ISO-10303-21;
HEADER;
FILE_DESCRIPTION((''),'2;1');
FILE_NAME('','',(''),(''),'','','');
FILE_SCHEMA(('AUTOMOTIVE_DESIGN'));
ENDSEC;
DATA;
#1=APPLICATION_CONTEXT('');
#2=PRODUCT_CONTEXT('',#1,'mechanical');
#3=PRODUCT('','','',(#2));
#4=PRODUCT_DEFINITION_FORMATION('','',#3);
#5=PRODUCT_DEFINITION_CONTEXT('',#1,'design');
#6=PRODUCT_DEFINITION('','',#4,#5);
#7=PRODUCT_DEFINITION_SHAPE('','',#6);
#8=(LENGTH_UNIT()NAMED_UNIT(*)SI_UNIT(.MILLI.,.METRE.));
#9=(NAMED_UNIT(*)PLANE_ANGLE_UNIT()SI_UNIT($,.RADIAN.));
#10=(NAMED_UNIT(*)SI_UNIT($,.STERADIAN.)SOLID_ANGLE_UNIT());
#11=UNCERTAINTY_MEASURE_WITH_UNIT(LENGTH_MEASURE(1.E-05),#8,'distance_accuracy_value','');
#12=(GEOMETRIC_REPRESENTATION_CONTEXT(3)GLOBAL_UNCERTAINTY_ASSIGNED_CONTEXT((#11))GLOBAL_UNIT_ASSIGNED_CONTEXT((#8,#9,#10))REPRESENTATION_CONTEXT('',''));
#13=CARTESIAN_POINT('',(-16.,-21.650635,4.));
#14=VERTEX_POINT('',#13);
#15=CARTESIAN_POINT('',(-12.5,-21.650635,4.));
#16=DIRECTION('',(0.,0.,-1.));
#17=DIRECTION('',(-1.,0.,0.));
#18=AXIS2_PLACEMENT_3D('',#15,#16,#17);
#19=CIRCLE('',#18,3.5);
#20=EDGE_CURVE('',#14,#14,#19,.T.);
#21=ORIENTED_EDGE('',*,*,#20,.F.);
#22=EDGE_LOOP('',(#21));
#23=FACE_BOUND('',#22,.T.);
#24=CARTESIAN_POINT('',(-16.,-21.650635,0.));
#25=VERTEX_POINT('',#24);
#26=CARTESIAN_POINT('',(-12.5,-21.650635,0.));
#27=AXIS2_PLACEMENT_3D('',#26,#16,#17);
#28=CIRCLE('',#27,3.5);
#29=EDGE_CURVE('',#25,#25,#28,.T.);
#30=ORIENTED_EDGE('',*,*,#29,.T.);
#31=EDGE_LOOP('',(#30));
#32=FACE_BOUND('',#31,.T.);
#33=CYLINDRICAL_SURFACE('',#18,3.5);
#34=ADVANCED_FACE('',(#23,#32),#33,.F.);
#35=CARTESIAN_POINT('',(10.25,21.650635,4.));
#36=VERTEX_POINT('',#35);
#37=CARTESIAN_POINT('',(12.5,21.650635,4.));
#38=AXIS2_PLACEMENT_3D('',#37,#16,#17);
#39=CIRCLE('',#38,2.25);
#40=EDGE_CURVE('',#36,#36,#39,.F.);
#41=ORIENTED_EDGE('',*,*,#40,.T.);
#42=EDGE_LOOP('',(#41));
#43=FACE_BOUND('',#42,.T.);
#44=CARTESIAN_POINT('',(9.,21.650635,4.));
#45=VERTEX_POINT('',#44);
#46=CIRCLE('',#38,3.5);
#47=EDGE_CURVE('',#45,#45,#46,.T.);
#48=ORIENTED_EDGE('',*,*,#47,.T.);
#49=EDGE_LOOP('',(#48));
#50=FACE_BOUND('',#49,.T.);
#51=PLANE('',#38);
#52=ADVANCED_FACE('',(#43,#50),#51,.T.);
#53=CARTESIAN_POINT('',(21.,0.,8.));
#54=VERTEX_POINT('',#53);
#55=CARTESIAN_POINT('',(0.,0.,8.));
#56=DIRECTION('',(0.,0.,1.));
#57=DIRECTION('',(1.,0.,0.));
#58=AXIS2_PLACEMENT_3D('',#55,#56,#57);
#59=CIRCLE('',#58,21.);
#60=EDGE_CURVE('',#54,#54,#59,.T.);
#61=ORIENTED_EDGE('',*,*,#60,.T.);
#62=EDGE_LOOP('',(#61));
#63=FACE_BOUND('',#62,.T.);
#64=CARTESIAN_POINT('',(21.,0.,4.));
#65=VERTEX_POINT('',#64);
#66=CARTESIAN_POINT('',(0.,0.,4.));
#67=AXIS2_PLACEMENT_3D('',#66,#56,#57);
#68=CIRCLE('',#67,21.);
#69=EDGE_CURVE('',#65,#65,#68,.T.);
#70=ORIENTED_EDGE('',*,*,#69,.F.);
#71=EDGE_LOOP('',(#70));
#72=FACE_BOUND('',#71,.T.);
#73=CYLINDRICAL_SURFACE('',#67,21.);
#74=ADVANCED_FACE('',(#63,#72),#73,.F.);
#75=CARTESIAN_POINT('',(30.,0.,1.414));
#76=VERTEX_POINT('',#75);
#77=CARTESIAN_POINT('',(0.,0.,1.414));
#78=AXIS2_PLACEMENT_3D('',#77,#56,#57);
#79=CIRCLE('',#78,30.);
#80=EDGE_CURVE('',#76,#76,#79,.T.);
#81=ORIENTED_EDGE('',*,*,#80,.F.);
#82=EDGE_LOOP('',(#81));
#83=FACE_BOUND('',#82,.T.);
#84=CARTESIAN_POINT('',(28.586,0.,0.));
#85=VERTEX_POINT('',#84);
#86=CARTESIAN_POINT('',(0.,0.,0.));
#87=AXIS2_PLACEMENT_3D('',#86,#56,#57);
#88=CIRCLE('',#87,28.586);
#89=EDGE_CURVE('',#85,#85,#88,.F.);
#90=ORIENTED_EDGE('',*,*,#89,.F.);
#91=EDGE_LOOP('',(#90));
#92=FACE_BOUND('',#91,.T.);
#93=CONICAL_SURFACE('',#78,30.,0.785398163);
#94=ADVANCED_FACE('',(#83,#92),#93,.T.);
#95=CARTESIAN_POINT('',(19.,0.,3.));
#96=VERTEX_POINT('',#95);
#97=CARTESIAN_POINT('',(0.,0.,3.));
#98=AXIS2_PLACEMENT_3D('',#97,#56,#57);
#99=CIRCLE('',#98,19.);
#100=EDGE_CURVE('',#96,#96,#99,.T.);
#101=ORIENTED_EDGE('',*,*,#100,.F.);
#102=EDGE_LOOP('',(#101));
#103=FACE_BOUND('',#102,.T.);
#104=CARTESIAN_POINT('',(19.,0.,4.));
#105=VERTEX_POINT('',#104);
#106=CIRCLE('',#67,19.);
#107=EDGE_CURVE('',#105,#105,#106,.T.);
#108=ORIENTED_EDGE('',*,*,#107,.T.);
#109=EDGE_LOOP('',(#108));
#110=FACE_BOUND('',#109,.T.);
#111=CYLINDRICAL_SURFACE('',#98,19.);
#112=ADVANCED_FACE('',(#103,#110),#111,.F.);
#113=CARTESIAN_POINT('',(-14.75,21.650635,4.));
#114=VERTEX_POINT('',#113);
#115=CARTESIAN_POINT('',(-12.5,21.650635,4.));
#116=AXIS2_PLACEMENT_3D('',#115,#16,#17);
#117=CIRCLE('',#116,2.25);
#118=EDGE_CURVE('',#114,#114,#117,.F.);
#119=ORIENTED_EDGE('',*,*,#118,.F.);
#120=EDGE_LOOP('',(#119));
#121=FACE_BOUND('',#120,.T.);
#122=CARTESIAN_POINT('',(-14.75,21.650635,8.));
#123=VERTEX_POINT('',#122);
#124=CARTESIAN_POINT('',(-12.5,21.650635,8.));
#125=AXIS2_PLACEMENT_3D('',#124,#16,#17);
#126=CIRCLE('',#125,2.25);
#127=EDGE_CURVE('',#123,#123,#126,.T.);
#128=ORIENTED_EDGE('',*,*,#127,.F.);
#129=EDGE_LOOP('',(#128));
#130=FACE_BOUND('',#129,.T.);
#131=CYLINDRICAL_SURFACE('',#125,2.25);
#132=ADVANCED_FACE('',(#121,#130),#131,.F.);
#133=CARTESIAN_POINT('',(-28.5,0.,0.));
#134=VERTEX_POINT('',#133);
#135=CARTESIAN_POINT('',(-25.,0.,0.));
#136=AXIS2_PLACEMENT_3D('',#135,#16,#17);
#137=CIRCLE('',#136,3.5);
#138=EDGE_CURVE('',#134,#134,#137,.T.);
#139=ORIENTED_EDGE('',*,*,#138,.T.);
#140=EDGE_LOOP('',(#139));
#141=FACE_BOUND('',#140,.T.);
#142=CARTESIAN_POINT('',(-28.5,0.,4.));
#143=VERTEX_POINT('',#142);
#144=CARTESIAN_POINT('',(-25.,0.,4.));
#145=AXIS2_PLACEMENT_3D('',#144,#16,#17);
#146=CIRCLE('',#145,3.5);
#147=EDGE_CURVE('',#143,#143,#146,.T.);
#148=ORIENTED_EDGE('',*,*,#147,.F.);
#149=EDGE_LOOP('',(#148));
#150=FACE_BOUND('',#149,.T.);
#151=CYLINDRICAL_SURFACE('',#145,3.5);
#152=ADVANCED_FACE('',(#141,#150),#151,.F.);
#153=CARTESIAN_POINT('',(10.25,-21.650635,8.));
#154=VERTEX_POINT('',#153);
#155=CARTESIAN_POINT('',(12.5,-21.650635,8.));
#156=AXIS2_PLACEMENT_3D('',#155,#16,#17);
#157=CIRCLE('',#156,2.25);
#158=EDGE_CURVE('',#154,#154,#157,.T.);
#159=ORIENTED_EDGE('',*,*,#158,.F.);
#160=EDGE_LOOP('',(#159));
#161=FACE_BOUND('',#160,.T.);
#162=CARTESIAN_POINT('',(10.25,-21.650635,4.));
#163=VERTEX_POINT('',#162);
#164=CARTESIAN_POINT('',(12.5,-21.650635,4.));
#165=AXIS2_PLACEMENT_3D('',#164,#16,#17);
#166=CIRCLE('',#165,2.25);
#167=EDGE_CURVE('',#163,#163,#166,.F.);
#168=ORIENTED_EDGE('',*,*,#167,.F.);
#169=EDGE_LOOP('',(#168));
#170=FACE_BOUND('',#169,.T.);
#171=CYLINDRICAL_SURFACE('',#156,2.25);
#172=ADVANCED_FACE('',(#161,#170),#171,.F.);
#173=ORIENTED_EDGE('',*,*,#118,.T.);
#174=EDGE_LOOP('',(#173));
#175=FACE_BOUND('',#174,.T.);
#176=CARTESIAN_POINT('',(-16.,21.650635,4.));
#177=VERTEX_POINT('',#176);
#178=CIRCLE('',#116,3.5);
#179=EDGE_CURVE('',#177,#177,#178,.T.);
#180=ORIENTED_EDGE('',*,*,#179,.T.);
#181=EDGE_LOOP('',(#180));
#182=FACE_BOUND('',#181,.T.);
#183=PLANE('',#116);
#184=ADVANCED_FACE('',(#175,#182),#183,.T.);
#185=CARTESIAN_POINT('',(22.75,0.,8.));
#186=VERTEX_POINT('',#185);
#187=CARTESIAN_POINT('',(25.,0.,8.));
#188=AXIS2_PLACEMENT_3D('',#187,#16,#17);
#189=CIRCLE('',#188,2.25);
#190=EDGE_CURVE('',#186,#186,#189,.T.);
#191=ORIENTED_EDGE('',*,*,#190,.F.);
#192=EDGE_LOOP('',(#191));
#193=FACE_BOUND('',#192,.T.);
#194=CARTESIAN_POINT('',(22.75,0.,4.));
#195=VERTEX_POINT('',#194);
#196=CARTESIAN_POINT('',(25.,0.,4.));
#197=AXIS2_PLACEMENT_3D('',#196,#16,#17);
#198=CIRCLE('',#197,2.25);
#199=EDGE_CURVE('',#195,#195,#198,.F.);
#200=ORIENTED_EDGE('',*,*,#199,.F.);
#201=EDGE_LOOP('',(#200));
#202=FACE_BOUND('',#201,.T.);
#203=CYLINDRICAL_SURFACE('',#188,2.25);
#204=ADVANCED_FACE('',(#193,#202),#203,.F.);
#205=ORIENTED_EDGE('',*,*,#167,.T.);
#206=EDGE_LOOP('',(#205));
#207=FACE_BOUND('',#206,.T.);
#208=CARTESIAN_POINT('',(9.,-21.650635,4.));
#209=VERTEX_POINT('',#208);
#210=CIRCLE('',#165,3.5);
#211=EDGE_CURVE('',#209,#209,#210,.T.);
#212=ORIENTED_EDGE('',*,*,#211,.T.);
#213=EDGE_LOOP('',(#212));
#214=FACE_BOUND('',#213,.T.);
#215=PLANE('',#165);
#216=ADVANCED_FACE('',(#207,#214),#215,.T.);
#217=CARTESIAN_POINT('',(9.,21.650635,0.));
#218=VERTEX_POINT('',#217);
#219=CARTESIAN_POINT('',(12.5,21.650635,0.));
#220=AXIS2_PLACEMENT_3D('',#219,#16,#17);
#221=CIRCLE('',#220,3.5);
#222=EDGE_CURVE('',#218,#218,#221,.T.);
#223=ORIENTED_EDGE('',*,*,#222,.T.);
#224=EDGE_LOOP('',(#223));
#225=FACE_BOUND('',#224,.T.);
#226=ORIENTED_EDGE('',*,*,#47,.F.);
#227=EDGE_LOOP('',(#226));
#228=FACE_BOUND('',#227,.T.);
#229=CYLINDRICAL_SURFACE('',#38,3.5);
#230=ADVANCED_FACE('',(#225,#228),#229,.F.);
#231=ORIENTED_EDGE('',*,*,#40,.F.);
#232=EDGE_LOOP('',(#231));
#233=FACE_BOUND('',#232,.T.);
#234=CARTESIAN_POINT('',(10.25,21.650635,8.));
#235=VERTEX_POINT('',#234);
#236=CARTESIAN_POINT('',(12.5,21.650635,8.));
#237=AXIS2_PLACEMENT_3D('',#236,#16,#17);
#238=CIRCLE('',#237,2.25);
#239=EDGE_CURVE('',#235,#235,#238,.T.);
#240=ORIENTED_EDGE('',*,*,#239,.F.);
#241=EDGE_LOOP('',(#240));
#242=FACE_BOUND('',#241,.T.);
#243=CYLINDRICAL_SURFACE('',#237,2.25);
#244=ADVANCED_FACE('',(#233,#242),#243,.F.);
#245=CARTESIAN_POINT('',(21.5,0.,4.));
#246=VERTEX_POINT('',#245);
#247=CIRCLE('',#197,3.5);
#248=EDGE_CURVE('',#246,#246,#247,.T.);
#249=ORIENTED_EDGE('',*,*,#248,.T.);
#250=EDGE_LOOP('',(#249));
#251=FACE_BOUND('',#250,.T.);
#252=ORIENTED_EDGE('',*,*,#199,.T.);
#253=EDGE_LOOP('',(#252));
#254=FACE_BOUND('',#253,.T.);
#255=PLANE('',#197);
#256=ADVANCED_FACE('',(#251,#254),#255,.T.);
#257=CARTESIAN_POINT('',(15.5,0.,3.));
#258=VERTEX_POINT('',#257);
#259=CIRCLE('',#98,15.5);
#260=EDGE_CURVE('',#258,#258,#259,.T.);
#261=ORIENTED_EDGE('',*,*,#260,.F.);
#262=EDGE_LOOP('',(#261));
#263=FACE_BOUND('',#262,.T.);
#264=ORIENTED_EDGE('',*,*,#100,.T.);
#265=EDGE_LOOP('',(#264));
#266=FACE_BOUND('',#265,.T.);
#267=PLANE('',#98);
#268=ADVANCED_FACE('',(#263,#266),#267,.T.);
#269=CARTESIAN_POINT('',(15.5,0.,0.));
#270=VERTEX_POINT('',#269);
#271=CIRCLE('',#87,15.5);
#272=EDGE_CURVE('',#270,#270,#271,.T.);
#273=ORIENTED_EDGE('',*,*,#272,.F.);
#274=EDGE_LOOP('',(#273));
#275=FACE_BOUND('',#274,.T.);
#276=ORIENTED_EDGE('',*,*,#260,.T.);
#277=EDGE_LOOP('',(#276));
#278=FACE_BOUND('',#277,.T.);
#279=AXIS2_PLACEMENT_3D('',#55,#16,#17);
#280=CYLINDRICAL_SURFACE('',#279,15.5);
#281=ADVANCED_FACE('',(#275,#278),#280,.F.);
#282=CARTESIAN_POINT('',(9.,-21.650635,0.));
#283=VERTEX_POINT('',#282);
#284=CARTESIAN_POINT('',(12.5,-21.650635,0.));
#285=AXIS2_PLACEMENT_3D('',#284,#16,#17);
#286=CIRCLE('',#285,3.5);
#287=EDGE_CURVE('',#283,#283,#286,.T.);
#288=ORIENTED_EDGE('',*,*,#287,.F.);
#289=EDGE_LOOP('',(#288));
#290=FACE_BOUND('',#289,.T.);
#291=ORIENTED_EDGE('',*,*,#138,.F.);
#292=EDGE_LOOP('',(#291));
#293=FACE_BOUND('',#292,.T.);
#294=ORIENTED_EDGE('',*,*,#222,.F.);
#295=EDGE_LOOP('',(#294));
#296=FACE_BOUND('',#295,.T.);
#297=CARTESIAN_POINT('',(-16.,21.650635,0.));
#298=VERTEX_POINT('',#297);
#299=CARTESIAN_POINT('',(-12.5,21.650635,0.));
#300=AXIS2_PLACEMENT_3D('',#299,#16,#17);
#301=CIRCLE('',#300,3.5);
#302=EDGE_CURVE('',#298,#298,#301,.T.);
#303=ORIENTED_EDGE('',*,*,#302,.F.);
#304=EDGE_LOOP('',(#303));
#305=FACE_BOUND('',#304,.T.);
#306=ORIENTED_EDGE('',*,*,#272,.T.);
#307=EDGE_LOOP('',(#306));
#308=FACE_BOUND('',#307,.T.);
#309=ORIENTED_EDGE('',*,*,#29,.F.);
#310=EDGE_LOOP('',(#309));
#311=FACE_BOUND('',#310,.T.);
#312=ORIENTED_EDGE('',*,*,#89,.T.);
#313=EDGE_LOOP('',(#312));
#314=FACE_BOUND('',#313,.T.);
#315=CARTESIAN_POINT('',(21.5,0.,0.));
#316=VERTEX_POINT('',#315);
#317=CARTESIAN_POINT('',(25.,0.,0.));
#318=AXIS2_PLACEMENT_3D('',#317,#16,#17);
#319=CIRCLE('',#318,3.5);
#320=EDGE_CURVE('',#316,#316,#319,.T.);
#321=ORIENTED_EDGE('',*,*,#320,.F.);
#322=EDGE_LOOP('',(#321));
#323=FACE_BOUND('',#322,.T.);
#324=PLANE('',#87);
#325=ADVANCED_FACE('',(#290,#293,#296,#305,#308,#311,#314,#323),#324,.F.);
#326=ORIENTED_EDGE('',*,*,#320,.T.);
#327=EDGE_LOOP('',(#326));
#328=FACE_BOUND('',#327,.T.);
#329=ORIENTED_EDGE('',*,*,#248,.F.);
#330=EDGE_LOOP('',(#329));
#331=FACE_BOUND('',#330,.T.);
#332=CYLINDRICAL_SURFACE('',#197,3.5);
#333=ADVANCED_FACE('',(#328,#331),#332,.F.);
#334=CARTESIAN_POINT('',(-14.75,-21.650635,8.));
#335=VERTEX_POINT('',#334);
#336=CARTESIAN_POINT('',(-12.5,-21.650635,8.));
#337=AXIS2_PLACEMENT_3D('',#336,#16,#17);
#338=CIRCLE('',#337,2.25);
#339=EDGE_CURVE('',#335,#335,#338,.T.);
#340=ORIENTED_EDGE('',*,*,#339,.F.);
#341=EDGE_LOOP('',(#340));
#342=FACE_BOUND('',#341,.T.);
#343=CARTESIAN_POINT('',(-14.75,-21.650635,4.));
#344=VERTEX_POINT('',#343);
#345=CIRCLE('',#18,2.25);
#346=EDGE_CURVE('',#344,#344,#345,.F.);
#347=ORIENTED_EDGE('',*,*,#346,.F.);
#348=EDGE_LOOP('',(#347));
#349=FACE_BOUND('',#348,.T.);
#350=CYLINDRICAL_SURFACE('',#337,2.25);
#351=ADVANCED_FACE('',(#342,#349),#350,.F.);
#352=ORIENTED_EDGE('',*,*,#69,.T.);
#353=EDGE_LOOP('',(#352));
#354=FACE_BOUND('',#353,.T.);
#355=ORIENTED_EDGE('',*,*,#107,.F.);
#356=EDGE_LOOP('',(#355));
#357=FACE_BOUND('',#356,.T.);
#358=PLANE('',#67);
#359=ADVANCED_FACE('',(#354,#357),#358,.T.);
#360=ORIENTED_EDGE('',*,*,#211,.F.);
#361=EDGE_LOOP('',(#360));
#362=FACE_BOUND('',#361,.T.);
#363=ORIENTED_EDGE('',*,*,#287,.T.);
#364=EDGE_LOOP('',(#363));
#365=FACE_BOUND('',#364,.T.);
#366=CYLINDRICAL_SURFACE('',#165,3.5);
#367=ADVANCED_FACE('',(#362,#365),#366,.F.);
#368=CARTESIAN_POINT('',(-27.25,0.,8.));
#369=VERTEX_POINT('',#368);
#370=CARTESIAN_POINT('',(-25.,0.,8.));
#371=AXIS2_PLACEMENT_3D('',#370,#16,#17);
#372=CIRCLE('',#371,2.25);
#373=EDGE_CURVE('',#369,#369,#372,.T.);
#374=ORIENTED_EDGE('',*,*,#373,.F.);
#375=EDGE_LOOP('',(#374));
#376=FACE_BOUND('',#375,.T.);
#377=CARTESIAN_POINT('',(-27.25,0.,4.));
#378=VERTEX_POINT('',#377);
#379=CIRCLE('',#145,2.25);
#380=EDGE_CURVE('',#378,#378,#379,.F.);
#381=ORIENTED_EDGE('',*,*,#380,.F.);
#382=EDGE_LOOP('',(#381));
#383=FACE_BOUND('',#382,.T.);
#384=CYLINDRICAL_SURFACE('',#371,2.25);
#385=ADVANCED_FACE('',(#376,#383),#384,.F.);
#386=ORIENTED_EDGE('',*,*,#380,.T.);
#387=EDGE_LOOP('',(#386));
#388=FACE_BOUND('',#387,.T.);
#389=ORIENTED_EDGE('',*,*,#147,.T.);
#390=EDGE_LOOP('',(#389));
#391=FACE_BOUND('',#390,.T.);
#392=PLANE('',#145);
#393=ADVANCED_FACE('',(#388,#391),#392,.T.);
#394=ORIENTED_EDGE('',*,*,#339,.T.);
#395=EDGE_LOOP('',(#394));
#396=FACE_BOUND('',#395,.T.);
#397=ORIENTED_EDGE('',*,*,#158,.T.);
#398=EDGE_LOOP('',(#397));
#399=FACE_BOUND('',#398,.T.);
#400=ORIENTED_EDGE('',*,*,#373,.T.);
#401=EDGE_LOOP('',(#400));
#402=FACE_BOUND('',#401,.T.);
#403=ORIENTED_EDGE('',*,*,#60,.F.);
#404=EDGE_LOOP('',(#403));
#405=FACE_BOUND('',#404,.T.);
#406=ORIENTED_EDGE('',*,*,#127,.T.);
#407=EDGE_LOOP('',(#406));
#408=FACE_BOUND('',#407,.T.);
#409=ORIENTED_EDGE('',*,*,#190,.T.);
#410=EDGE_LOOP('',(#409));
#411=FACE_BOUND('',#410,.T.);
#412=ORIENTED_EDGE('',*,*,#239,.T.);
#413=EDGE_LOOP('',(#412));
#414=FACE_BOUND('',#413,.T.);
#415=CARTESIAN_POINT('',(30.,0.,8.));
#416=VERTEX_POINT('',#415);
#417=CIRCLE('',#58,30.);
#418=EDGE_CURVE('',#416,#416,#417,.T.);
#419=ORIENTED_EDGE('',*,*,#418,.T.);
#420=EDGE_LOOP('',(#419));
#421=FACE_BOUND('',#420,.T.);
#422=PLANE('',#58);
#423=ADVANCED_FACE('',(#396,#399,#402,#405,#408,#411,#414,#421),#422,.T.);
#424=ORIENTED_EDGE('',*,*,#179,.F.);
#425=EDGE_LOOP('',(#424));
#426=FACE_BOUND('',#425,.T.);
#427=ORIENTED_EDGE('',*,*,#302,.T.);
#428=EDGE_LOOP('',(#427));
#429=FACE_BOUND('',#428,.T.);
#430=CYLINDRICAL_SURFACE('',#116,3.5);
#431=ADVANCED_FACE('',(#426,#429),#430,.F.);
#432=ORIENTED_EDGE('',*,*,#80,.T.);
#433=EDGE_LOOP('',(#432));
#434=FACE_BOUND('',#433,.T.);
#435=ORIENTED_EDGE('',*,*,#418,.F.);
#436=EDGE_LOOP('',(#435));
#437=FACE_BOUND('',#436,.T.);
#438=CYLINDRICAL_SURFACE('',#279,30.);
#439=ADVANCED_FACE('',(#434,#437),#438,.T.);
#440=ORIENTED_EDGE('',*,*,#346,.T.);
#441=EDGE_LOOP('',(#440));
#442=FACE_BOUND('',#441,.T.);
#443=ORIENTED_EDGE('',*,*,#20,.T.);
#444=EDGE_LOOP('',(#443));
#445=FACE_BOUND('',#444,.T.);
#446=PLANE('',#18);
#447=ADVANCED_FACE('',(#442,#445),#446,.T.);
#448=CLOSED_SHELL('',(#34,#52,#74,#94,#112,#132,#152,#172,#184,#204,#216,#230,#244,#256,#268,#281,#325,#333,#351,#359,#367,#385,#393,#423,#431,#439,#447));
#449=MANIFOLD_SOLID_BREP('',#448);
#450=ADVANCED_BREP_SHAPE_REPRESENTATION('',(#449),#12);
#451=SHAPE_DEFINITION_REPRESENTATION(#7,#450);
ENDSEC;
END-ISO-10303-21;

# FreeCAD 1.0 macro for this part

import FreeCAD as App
import Part
import Sketcher
Q = App.Units.Quantity


def edges_at(feature, points):
    """Names of the edges that pass closest to the given points."""
    edges = feature.Shape.Edges
    near = lambda p: min(range(len(edges)), key=lambda i: edges[i].distToShape(Part.Vertex(*p))[0])
    return sorted({f"Edge{near(p) + 1}" for p in points})

doc = App.newDocument("Part")
body = doc.addObject("PartDesign::Body", "Body")

sketch1 = body.newObject("Sketcher::SketchObject", "Sketch")
sketch1.AttachmentSupport = (doc.getObject("XY_Plane"), [""])
sketch1.MapMode = "FlatFace"
sketch1.addGeometry([
    Part.Circle(App.Vector(0, 0, 0), App.Vector(0, 0, 1), 30),
    Part.Circle(App.Vector(0, 0, 0), App.Vector(0, 0, 1), 16),
], False)
sketch1.addConstraint([
    Sketcher.Constraint("Coincident", 0, 3, -1, 1),
    Sketcher.Constraint("Coincident", 1, 3, -1, 1),
    Sketcher.Constraint("Diameter", 0, Q("60 mm")),
    Sketcher.Constraint("Diameter", 1, Q("31 mm")),
])
pad1 = body.newObject("PartDesign::Pad", "Pad")
pad1.Profile = sketch1
pad1.Length = 8

sketch2 = body.newObject("Sketcher::SketchObject", "Sketch001")
sketch2.AttachmentSupport = (doc.getObject("XY_Plane"), [""])
sketch2.MapMode = "FlatFace"
sketch2.AttachmentOffset = App.Placement(App.Vector(0, 0, 8), App.Rotation())
sketch2.addGeometry(Part.Circle(App.Vector(0, 0, 0), App.Vector(0, 0, 1), 21), False)
sketch2.addConstraint([
    Sketcher.Constraint("Coincident", 0, 3, -1, 1),
    Sketcher.Constraint("Diameter", 0, Q("42 mm")),
])
pocket1 = body.newObject("PartDesign::Pocket", "Pocket")
pocket1.Profile = sketch2
pocket1.Length = 4

sketch3 = body.newObject("Sketcher::SketchObject", "Sketch002")
sketch3.AttachmentSupport = (doc.getObject("XY_Plane"), [""])
sketch3.MapMode = "FlatFace"
sketch3.AttachmentOffset = App.Placement(App.Vector(0, 0, 4), App.Rotation())
sketch3.addGeometry(Part.Circle(App.Vector(0, 0, 0), App.Vector(0, 0, 1), 19), False)
sketch3.addConstraint([
    Sketcher.Constraint("Coincident", 0, 3, -1, 1),
    Sketcher.Constraint("Diameter", 0, Q("38 mm")),
])
pocket2 = body.newObject("PartDesign::Pocket", "Pocket001")
pocket2.Profile = sketch3
pocket2.Length = 1

sketch4 = body.newObject("Sketcher::SketchObject", "Sketch003")
sketch4.AttachmentSupport = (doc.getObject("XY_Plane"), [""])
sketch4.MapMode = "FlatFace"
sketch4.addGeometry([
    Part.Circle(App.Vector(-12.5, 21.7, 0), App.Vector(0, 0, 1), 2.2),
    Part.Circle(App.Vector(12.5, 21.7, 0), App.Vector(0, 0, 1), 2.2),
    Part.Circle(App.Vector(25, 0, 0), App.Vector(0, 0, 1), 2.2),
    Part.Circle(App.Vector(12.5, -21.7, 0), App.Vector(0, 0, 1), 2.2),
    Part.Circle(App.Vector(-12.5, -21.7, 0), App.Vector(0, 0, 1), 2.2),
    Part.Circle(App.Vector(-25, 0, 0), App.Vector(0, 0, 1), 2.2),
], False)
sketch4.addConstraint([
    Sketcher.Constraint("Equal", 0, 1),
    Sketcher.Constraint("Equal", 1, 2),
    Sketcher.Constraint("Equal", 2, 3),
    Sketcher.Constraint("Equal", 3, 4),
    Sketcher.Constraint("Equal", 4, 5),
    Sketcher.Constraint("Symmetric", 0, 3, 3, 3, -1, 1),
    Sketcher.Constraint("Symmetric", 1, 3, 4, 3, -1, 1),
    Sketcher.Constraint("Symmetric", 2, 3, 5, 3, -1, 1),
    Sketcher.Constraint("Symmetric", 0, 3, 1, 3, -2),
    Sketcher.Constraint("PointOnObject", 2, 3, -1),
    Sketcher.Constraint("Diameter", 0, Q("4.5 mm")),
    Sketcher.Constraint("DistanceX", -1, 1, 2, 3, Q("25 mm")),
    Sketcher.Constraint("DistanceX", 0, 3, 1, 3, Q("25 mm")),
    Sketcher.Constraint("DistanceY", 3, 3, 1, 3, Q("43.30127 mm")),
])
pocket3 = body.newObject("PartDesign::Pocket", "Pocket002")
pocket3.Profile = sketch4
pocket3.Type = "ThroughAll"
pocket3.Reversed = True

sketch5 = body.newObject("Sketcher::SketchObject", "Sketch004")
sketch5.AttachmentSupport = (doc.getObject("XY_Plane"), [""])
sketch5.MapMode = "FlatFace"
sketch5.addGeometry([
    Part.Circle(App.Vector(12.5, 21.7, 0), App.Vector(0, 0, 1), 3.5),
    Part.Circle(App.Vector(25, 0, 0), App.Vector(0, 0, 1), 3.5),
    Part.Circle(App.Vector(12.5, -21.7, 0), App.Vector(0, 0, 1), 3.5),
    Part.Circle(App.Vector(-12.5, -21.7, 0), App.Vector(0, 0, 1), 3.5),
    Part.Circle(App.Vector(-25, 0, 0), App.Vector(0, 0, 1), 3.5),
    Part.Circle(App.Vector(-12.5, 21.7, 0), App.Vector(0, 0, 1), 3.5),
], False)
sketch5.addConstraint([
    Sketcher.Constraint("Equal", 0, 1),
    Sketcher.Constraint("Equal", 1, 2),
    Sketcher.Constraint("Equal", 2, 3),
    Sketcher.Constraint("Equal", 3, 4),
    Sketcher.Constraint("Equal", 4, 5),
    Sketcher.Constraint("Symmetric", 0, 3, 3, 3, -1, 1),
    Sketcher.Constraint("Symmetric", 1, 3, 4, 3, -1, 1),
    Sketcher.Constraint("Symmetric", 2, 3, 5, 3, -1, 1),
    Sketcher.Constraint("Symmetric", 2, 3, 3, 3, -2),
    Sketcher.Constraint("PointOnObject", 1, 3, -1),
    Sketcher.Constraint("Diameter", 0, Q("7 mm")),
    Sketcher.Constraint("DistanceX", -1, 1, 1, 3, Q("25 mm")),
    Sketcher.Constraint("DistanceX", 3, 3, 2, 3, Q("25 mm")),
    Sketcher.Constraint("DistanceY", 2, 3, 0, 3, Q("43.30127 mm")),
])
pocket4 = body.newObject("PartDesign::Pocket", "Pocket003")
pocket4.Profile = sketch5
pocket4.Length = 4
pocket4.Reversed = True
doc.recompute()

chamfer = body.newObject("PartDesign::Chamfer", "Chamfer")
chamfer.Base = (pocket4, edges_at(pocket4, [(-30, 0, 0)]))
chamfer.Size = 1.414

doc.recompute()
